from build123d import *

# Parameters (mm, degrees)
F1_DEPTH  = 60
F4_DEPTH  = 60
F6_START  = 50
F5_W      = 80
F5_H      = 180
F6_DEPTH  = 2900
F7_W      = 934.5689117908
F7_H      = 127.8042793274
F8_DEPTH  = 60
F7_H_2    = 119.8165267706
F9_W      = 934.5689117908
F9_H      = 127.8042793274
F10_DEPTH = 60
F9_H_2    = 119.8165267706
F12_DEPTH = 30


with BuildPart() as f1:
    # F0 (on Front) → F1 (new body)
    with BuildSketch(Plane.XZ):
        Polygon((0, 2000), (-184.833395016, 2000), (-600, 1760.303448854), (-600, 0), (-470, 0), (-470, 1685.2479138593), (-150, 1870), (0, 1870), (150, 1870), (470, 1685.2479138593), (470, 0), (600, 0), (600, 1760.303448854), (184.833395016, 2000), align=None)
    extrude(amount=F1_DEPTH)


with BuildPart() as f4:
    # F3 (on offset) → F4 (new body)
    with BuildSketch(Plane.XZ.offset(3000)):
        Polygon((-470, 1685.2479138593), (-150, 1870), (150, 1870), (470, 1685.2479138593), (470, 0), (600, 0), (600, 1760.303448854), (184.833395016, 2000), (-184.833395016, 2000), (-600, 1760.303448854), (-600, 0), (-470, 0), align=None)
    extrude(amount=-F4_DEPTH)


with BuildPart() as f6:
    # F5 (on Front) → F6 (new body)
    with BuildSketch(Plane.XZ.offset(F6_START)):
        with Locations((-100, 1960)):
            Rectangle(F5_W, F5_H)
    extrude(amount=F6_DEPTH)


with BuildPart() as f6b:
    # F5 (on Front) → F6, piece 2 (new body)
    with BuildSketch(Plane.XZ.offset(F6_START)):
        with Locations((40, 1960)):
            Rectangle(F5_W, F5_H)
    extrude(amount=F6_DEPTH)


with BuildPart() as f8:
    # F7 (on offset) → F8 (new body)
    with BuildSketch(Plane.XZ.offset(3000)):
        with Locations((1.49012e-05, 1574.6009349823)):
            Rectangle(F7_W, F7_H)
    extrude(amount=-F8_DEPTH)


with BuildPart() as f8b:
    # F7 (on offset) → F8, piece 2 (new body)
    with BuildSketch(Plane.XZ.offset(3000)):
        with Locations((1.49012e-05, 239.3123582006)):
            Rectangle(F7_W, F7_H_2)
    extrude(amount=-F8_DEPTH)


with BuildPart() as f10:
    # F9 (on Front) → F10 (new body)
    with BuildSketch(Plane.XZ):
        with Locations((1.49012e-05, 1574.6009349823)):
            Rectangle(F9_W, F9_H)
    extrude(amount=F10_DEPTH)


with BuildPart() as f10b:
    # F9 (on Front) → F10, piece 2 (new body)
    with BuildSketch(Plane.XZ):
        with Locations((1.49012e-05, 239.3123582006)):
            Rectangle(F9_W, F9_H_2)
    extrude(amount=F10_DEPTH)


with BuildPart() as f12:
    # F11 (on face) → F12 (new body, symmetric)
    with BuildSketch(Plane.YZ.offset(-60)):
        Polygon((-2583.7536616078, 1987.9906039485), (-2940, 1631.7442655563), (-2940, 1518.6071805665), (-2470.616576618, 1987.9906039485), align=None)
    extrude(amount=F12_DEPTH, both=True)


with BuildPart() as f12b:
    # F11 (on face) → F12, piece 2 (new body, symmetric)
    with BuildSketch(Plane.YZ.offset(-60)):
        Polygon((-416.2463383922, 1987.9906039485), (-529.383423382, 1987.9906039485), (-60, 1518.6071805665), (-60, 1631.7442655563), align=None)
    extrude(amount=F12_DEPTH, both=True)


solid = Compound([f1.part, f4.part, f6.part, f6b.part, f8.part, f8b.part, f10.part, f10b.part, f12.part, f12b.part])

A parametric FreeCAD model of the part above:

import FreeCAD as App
import Part
import Sketcher

V = App.Vector
Q = App.Units.Quantity


def add_polygon(sketch, points):
    """Adds a closed chain of lines whose ends are joined by coincident constraints."""
    first, n = sketch.GeometryCount, len(points)
    for a, b in zip(points, points[1:] + points[:1]):
        sketch.addGeometry(Part.LineSegment(App.Vector(*a, 0), App.Vector(*b, 0)), False)
    for i in range(n):
        sketch.addConstraint(Sketcher.Constraint("Coincident", first + i, 2, first + (i + 1) % n, 1))

doc = App.newDocument("Part")
body = doc.addObject("PartDesign::Body", "Body")

sketch1 = body.newObject("Sketcher::SketchObject", "Sketch")
sketch1.AttachmentSupport = (doc.getObject("XZ_Plane"), [""])
sketch1.MapMode = "FlatFace"
add_polygon(sketch1, [(-185, 2000), (-600, 1760), (-600, 0), (-470, 0), (-470, 1685), (-150, 1870), (150, 1870), (470, 1685), (470, 0), (600, 0), (600, 1760), (185, 2000)])
sketch1.addConstraint([
    Sketcher.Constraint("Vertical", 1),
    Sketcher.Constraint("Horizontal", 2),
    Sketcher.Constraint("Vertical", 3),
    Sketcher.Constraint("Horizontal", 5),
    Sketcher.Constraint("Vertical", 7),
    Sketcher.Constraint("Horizontal", 8),
    Sketcher.Constraint("Vertical", 9),
    Sketcher.Constraint("Horizontal", 11),
    Sketcher.Constraint("Symmetric", 2, 2, 7, 2, -1, 1),
    Sketcher.Constraint("Symmetric", 1, 2, 8, 2, -2),
    Sketcher.Constraint("Parallel", 0, 4),
    Sketcher.Constraint("Parallel", 6, 10),
    Sketcher.Constraint("Horizontal", 3, 2, 6, 2),
    Sketcher.Constraint("Horizontal", 0, 2, 9, 2),
    Sketcher.Constraint("Equal", 4, 6),
    Sketcher.Constraint("DistanceX", 2, 1, 2, 2, 130.0),
    Sketcher.Constraint("DistanceX", 5, 1, 5, 2, 300.0),
    Sketcher.Constraint("Angle", 0, Q("-150 deg")),
    Sketcher.Constraint("DistanceX", 0, 2, -1, 1, 600.0),
    Sketcher.Constraint("DistanceY", -1, 1, 4, 2, 1870.0),
    Sketcher.Constraint("DistanceY", -1, 1, 10, 2, 2000.0),
    Sketcher.Constraint("DistanceX", 11, 2, 11, 1, 369.66679),
])
pad1 = body.newObject("PartDesign::Pad", "Pad")
pad1.Profile = sketch1
pad1.Length = 60
body2 = doc.addObject("PartDesign::Body", "Body001")

sketch2 = body2.newObject("Sketcher::SketchObject", "Sketch001")
sketch2.AttachmentSupport = (doc.getObject("XZ_Plane001"), [""])
sketch2.MapMode = "FlatFace"
sketch2.AttachmentOffset = App.Placement(V(0, 0, 3000), App.Rotation())
add_polygon(sketch2, [(-470, 1685), (-150, 1870), (150, 1870), (470, 1685), (470, 0), (600, 0), (600, 1760), (185, 2000), (-185, 2000), (-600, 1760), (-600, 0), (-470, 0)])
sketch2.addConstraint([
    Sketcher.Constraint("Horizontal", 1),
    Sketcher.Constraint("Vertical", 3),
    Sketcher.Constraint("Horizontal", 4),
    Sketcher.Constraint("Vertical", 5),
    Sketcher.Constraint("Horizontal", 7),
    Sketcher.Constraint("Vertical", 9),
    Sketcher.Constraint("Horizontal", 10),
    Sketcher.Constraint("Vertical", 11),
    Sketcher.Constraint("Symmetric", 4, 2, 9, 2, -1, 1),
    Sketcher.Constraint("Symmetric", 3, 2, 10, 2, -2),
    Sketcher.Constraint("Parallel", 2, 6),
    Sketcher.Constraint("Parallel", 0, 8),
    Sketcher.Constraint("Horizontal", 5, 2, 8, 2),
    Sketcher.Constraint("Horizontal", 2, 2, 11, 2),
    Sketcher.Constraint("Equal", 0, 2),
    Sketcher.Constraint("DistanceX", 1, 1, 1, 2, 300.0),
    Sketcher.Constraint("DistanceX", 4, 1, 4, 2, 130.0),
    Sketcher.Constraint("Angle", 0, Q("30 deg")),
    Sketcher.Constraint("DistanceY", -1, 1, 0, 2, 1870.0),
    Sketcher.Constraint("DistanceX", -1, 1, 2, 2, 470.0),
    Sketcher.Constraint("DistanceY", -1, 1, 6, 2, 2000.0),
    Sketcher.Constraint("DistanceX", 7, 2, 7, 1, 369.66679),
])
pad2 = body2.newObject("PartDesign::Pad", "Pad001")
pad2.Profile = sketch2
pad2.Length = 60
pad2.Reversed = True
body3 = doc.addObject("PartDesign::Body", "Body002")

sketch3 = body3.newObject("Sketcher::SketchObject", "Sketch002")
sketch3.AttachmentSupport = (doc.getObject("XZ_Plane002"), [""])
sketch3.MapMode = "FlatFace"
sketch3.AttachmentOffset = App.Placement(V(0, 0, 50), App.Rotation())
add_polygon(sketch3, [(-140, 2050), (-140, 1870), (-60, 1870), (-60, 2050)])
sketch3.addConstraint([
    Sketcher.Constraint("Vertical", 0),
    Sketcher.Constraint("Horizontal", 1),
    Sketcher.Constraint("Vertical", 2),
    Sketcher.Constraint("Horizontal", 3),
    Sketcher.Constraint("DistanceX", 1, 1, 1, 2, 80.0),
    Sketcher.Constraint("DistanceY", 0, 2, 0, 1, 180.0),
    Sketcher.Constraint("DistanceX", 0, 2, -1, 1, 140.0),
    Sketcher.Constraint("DistanceY", -1, 1, 0, 2, 1870.0),
])
pad3 = body3.newObject("PartDesign::Pad", "Pad002")
pad3.Profile = sketch3
pad3.Length = 2900
body4 = doc.addObject("PartDesign::Body", "Body003")

sketch4 = body4.newObject("Sketcher::SketchObject", "Sketch003")
sketch4.AttachmentSupport = (doc.getObject("XZ_Plane003"), [""])
sketch4.MapMode = "FlatFace"
sketch4.AttachmentOffset = App.Placement(V(0, 0, 50), App.Rotation())
add_polygon(sketch4, [(0, 2050), (0, 1870), (80, 1870), (80, 2050)])
sketch4.addConstraint([
    Sketcher.Constraint("Vertical", 0),
    Sketcher.Constraint("Horizontal", 1),
    Sketcher.Constraint("Vertical", 2),
    Sketcher.Constraint("Horizontal", 3),
    Sketcher.Constraint("PointOnObject", 0, 2, -2),
    Sketcher.Constraint("DistanceX", 1, 1, 1, 2, 80.0),
    Sketcher.Constraint("DistanceY", 0, 2, 0, 1, 180.0),
    Sketcher.Constraint("DistanceY", -1, 1, 0, 2, 1870.0),
])
pad4 = body4.newObject("PartDesign::Pad", "Pad003")
pad4.Profile = sketch4
pad4.Length = 2900
body5 = doc.addObject("PartDesign::Body", "Body004")

sketch5 = body5.newObject("Sketcher::SketchObject", "Sketch004")
sketch5.AttachmentSupport = (doc.getObject("XZ_Plane004"), [""])
sketch5.MapMode = "FlatFace"
sketch5.AttachmentOffset = App.Placement(V(0, 0, 3000), App.Rotation())
add_polygon(sketch5, [(-467, 1639), (-467, 1511), (467, 1511), (467, 1639)])
sketch5.addConstraint([
    Sketcher.Constraint("Vertical", 0),
    Sketcher.Constraint("Horizontal", 1),
    Sketcher.Constraint("Vertical", 2),
    Sketcher.Constraint("Horizontal", 3),
    Sketcher.Constraint("DistanceX", 1, 1, 1, 2, 934.568912),
    Sketcher.Constraint("DistanceY", 0, 2, 0, 1, 127.804279),
    Sketcher.Constraint("DistanceX", 0, 2, -1, 1, 467.284441),
    Sketcher.Constraint("DistanceY", -1, 1, 0, 2, 1510.698795),
])
pad5 = body5.newObject("PartDesign::Pad", "Pad004")
pad5.Profile = sketch5
pad5.Length = 60
pad5.Reversed = True
body6 = doc.addObject("PartDesign::Body", "Body005")

sketch6 = body6.newObject("Sketcher::SketchObject", "Sketch005")
sketch6.AttachmentSupport = (doc.getObject("XZ_Plane005"), [""])
sketch6.MapMode = "FlatFace"
sketch6.AttachmentOffset = App.Placement(V(0, 0, 3000), App.Rotation())
add_polygon(sketch6, [(-467, 299), (-467, 179), (467, 179), (467, 299)])
sketch6.addConstraint([
    Sketcher.Constraint("Vertical", 0),
    Sketcher.Constraint("Horizontal", 1),
    Sketcher.Constraint("Vertical", 2),
    Sketcher.Constraint("Horizontal", 3),
    Sketcher.Constraint("DistanceX", 1, 1, 1, 2, 934.568912),
    Sketcher.Constraint("DistanceY", 0, 2, 0, 1, 119.816527),
    Sketcher.Constraint("DistanceX", 0, 2, -1, 1, 467.284441),
    Sketcher.Constraint("DistanceY", -1, 1, 2, 2, 299.220622),
])
pad6 = body6.newObject("PartDesign::Pad", "Pad005")
pad6.Profile = sketch6
pad6.Length = 60
pad6.Reversed = True
body7 = doc.addObject("PartDesign::Body", "Body006")

sketch7 = body7.newObject("Sketcher::SketchObject", "Sketch006")
sketch7.AttachmentSupport = (doc.getObject("XZ_Plane006"), [""])
sketch7.MapMode = "FlatFace"
add_polygon(sketch7, [(-467, 1639), (-467, 1511), (467, 1511), (467, 1639)])
sketch7.addConstraint([
    Sketcher.Constraint("Vertical", 0),
    Sketcher.Constraint("Horizontal", 1),
    Sketcher.Constraint("Vertical", 2),
    Sketcher.Constraint("Horizontal", 3),
    Sketcher.Constraint("DistanceX", 1, 1, 1, 2, 934.568912),
    Sketcher.Constraint("DistanceY", 0, 2, 0, 1, 127.804279),
    Sketcher.Constraint("DistanceX", 0, 2, -1, 1, 467.284441),
    Sketcher.Constraint("DistanceY", -1, 1, 0, 2, 1510.698795),
])
pad7 = body7.newObject("PartDesign::Pad", "Pad006")
pad7.Profile = sketch7
pad7.Length = 60
body8 = doc.addObject("PartDesign::Body", "Body007")

sketch8 = body8.newObject("Sketcher::SketchObject", "Sketch007")
sketch8.AttachmentSupport = (doc.getObject("XZ_Plane007"), [""])
sketch8.MapMode = "FlatFace"
add_polygon(sketch8, [(-467, 299), (-467, 179), (467, 179), (467, 299)])
sketch8.addConstraint([
    Sketcher.Constraint("Vertical", 0),
    Sketcher.Constraint("Horizontal", 1),
    Sketcher.Constraint("Vertical", 2),
    Sketcher.Constraint("Horizontal", 3),
    Sketcher.Constraint("DistanceX", 1, 1, 1, 2, 934.568912),
    Sketcher.Constraint("DistanceY", 0, 2, 0, 1, 119.816527),
    Sketcher.Constraint("DistanceX", 0, 2, -1, 1, 467.284441),
    Sketcher.Constraint("DistanceY", -1, 1, 2, 2, 299.220622),
])
pad8 = body8.newObject("PartDesign::Pad", "Pad007")
pad8.Profile = sketch8
pad8.Length = 60
body9 = doc.addObject("PartDesign::Body", "Body008")

sketch9 = body9.newObject("Sketcher::SketchObject", "Sketch008")
sketch9.AttachmentSupport = (doc.getObject("YZ_Plane008"), [""])
sketch9.MapMode = "FlatFace"
sketch9.AttachmentOffset = App.Placement(V(0, 0, -60), App.Rotation())
add_polygon(sketch9, [(-2584, 1988), (-2940, 1632), (-2940, 1519), (-2471, 1988)])
sketch9.addConstraint([
    Sketcher.Constraint("Vertical", 1),
    Sketcher.Constraint("Horizontal", 3),
    Sketcher.Constraint("Parallel", 0, 2),
    Sketcher.Constraint("Equal", 3, 1),
    Sketcher.Constraint("DistanceX", 0, 2, -1, 1, 2940.0),
    Sketcher.Constraint("DistanceX", 3, 2, 3, 1, 113.137085),
    Sketcher.Constraint("DistanceY", -1, 1, 1, 2, 1518.607181),
    Sketcher.Constraint("DistanceX", 3, 2, -1, 1, 2583.753662),
])
pad9 = body9.newObject("PartDesign::Pad", "Pad008")
pad9.Profile = sketch9
pad9.Length = 60
pad9.Midplane = True
body10 = doc.addObject("PartDesign::Body", "Body009")

sketch10 = body10.newObject("Sketcher::SketchObject", "Sketch009")
sketch10.AttachmentSupport = (doc.getObject("YZ_Plane009"), [""])
sketch10.MapMode = "FlatFace"
sketch10.AttachmentOffset = App.Placement(V(0, 0, -60), App.Rotation())
add_polygon(sketch10, [(-416, 1988), (-529, 1988), (-60, 1519), (-60, 1632)])
sketch10.addConstraint([
    Sketcher.Constraint("Horizontal", 0),
    Sketcher.Constraint("Vertical", 2),
    Sketcher.Constraint("Parallel", 1, 3),
    Sketcher.Constraint("Equal", 0, 2),
    Sketcher.Constraint("DistanceX", 1, 2, -1, 1, 60.0),
    Sketcher.Constraint("DistanceX", 0, 2, 0, 1, 113.137085),
    Sketcher.Constraint("DistanceY", -1, 1, 1, 2, 1518.607181),
    Sketcher.Constraint("DistanceX", 3, 2, -1, 1, 416.246338),
])
pad10 = body10.newObject("PartDesign::Pad", "Pad009")
pad10.Profile = sketch10
pad10.Length = 60
pad10.Midplane = True

doc.recompute()
